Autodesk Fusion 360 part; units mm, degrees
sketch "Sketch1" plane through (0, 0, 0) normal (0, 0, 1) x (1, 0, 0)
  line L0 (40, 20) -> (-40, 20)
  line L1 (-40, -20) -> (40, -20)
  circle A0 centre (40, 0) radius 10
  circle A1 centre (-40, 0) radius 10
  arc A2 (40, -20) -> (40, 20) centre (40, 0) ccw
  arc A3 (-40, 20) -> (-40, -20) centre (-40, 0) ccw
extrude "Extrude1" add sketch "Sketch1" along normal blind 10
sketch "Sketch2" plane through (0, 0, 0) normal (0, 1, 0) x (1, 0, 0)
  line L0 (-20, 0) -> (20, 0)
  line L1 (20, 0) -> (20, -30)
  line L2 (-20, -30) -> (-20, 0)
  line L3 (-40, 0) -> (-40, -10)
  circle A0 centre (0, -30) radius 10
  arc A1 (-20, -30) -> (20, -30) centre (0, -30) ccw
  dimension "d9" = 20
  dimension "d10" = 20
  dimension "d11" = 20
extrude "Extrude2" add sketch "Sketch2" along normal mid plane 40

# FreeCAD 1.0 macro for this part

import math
import FreeCAD as App
import Part
import Sketcher
Q = App.Units.Quantity

doc = App.newDocument("Part")
body = doc.addObject("PartDesign::Body", "Body")

# Sketch on XY plane
sketch1 = body.newObject("Sketcher::SketchObject", "Sketch")
sketch1.AttachmentSupport = (doc.getObject("XY_Plane"), [""])
sketch1.MapMode = "FlatFace"
sketch1.addGeometry([
    Part.ArcOfCircle(Part.Circle(App.Vector(40, 0, 0), App.Vector(0, 0, 1), 20), math.radians(-90), math.radians(90)),  # 0
    Part.LineSegment(App.Vector(40, 20, 0), App.Vector(-40, 20, 0)),  # 1
    Part.ArcOfCircle(Part.Circle(App.Vector(-40, 0, 0), App.Vector(0, 0, 1), 20), math.radians(90), math.radians(270)),  # 2
    Part.LineSegment(App.Vector(-40, -20, 0), App.Vector(40, -20, 0)),  # 3
    Part.Circle(App.Vector(-40, 0, 0), App.Vector(0, 0, 1), 10),  # 4
    Part.Circle(App.Vector(40, 0, 0), App.Vector(0, 0, 1), 10),  # 5
], False)
sketch1.addConstraint([
    Sketcher.Constraint("Tangent", 0, 2, 1, 1),
    Sketcher.Constraint("Tangent", 1, 2, 2, 1),
    Sketcher.Constraint("Tangent", 2, 2, 3, 1),
    Sketcher.Constraint("Tangent", 3, 2, 0, 1),
    Sketcher.Constraint("Horizontal", 1),
    Sketcher.Constraint("Horizontal", 3),
    Sketcher.Constraint("Coincident", 4, 3, 2, 3),
    Sketcher.Constraint("Coincident", 5, 3, 0, 3),
    Sketcher.Constraint("Equal", 4, 5),
    Sketcher.Constraint("Symmetric", 0, 3, 2, 3, -1, 1),
    Sketcher.Constraint("Diameter", 4, Q("20 mm")),
    Sketcher.Constraint("Radius", 0, Q("20 mm")),
    Sketcher.Constraint("DistanceX", 1, 2, 1, 1, Q("80 mm")),
])
pad1 = body.newObject("PartDesign::Pad", "Pad")
pad1.Profile = sketch1
pad1.Length = 10

# Sketch on XZ plane
sketch2 = body.newObject("Sketcher::SketchObject", "Sketch001")
sketch2.AttachmentSupport = (doc.getObject("XZ_Plane"), [""])
sketch2.MapMode = "FlatFace"
sketch2.addGeometry([
    Part.LineSegment(App.Vector(20, 0, 0), App.Vector(-20, 0, 0)),  # 0
    Part.LineSegment(App.Vector(-20, 0, 0), App.Vector(-20, 30, 0)),  # 1
    Part.ArcOfCircle(Part.Circle(App.Vector(0, 30, 0), App.Vector(0, 0, 1), 20), math.radians(0), math.radians(180)),  # 2
    Part.LineSegment(App.Vector(20, 30, 0), App.Vector(20, 0, 0)),  # 3
    Part.Circle(App.Vector(0, 30, 0), App.Vector(0, 0, 1), 10),  # 4
], False)
sketch2.addConstraint([
    Sketcher.Constraint("Coincident", 0, 2, 1, 1),
    Sketcher.Constraint("Tangent", 1, 2, 2, 2),
    Sketcher.Constraint("Tangent", 2, 1, 3, 1),
    Sketcher.Constraint("Coincident", 3, 2, 0, 1),
    Sketcher.Constraint("Horizontal", 0),
    Sketcher.Constraint("Vertical", 1),
    Sketcher.Constraint("Vertical", 3),
    Sketcher.Constraint("Coincident", 4, 3, 2, 3),
    Sketcher.Constraint("Symmetric", 0, 2, 3, 2, -1, 1),
    Sketcher.Constraint("Diameter", 4, Q("20 mm")),
    Sketcher.Constraint("Radius", 2, Q("20 mm")),
    Sketcher.Constraint("DistanceY", 1, 1, 1, 2, Q("30 mm")),
])
pad2 = body.newObject("PartDesign::Pad", "Pad001")
pad2.Profile = sketch2
pad2.Length = 40
pad2.Midplane = True

doc.recompute()
